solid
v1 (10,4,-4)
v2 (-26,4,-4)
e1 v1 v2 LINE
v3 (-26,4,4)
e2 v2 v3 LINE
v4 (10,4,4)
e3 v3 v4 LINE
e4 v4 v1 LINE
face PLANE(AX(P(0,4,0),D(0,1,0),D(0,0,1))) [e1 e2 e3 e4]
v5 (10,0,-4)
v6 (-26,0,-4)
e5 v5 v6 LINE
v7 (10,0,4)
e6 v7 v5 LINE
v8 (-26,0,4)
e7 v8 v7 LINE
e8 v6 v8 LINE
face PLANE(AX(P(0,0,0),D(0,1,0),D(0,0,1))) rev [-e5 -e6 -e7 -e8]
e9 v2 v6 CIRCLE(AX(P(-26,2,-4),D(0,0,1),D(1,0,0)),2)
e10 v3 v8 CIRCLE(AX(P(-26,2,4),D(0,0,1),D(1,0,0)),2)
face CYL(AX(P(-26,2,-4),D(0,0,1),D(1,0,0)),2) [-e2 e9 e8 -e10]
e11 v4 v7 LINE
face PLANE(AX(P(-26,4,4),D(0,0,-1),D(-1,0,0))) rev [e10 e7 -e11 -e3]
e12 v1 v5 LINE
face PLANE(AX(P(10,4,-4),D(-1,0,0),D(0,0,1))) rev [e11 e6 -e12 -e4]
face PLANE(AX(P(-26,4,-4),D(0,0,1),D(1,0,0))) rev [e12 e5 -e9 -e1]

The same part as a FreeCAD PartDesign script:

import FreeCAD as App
import Part
import Sketcher
Q = App.Units.Quantity

doc = App.newDocument("Part")
body = doc.addObject("PartDesign::Body", "Body")

# Sketch on XZ plane
sketch1 = doc.addObject("Sketcher::SketchObject", "Sketch")
body.addObject(sketch1)
sketch1.AttachmentSupport = (doc.XZ_Plane, [""])
sketch1.MapMode = "FlatFace"
sketch1.addGeometry(Part.LineSegment(App.Vector(-26, -4, 0), App.Vector(-26, 4, 0)), False)
sketch1.addGeometry(Part.LineSegment(App.Vector(-26, 4, 0), App.Vector(10, 4, 0)), False)
sketch1.addGeometry(Part.LineSegment(App.Vector(10, 4, 0), App.Vector(10, -4, 0)), False)
sketch1.addGeometry(Part.LineSegment(App.Vector(10, -4, 0), App.Vector(-26, -4, 0)), False)
sketch1.addConstraint(Sketcher.Constraint("Coincident", 0, 2, 1, 1))
sketch1.addConstraint(Sketcher.Constraint("Coincident", 1, 2, 2, 1))
sketch1.addConstraint(Sketcher.Constraint("Coincident", 2, 2, 3, 1))
sketch1.addConstraint(Sketcher.Constraint("Coincident", 3, 2, 0, 1))
sketch1.addConstraint(Sketcher.Constraint("Vertical", 0))
sketch1.addConstraint(Sketcher.Constraint("Horizontal", 1))
sketch1.addConstraint(Sketcher.Constraint("Vertical", 2))
sketch1.addConstraint(Sketcher.Constraint("Horizontal", 3))
sketch1.addConstraint(Sketcher.Constraint("DistanceX", 1, 1, 1, 2, Q("36 mm")))
sketch1.addConstraint(Sketcher.Constraint("DistanceY", 0, 1, 0, 2, Q("8 mm")))
sketch1.addConstraint(Sketcher.Constraint("DistanceX", 0, 2, -1, 1, Q("26 mm")))
sketch1.addConstraint(Sketcher.Constraint("DistanceY", -1, 1, 0, 2, Q("4 mm")))
pad1 = doc.addObject("PartDesign::Pad", "Pad")
body.addObject(pad1)
pad1.Profile = sketch1
pad1.Length = 4
pad1.Reversed = True

# Sketch on XY plane
sketch2 = doc.addObject("Sketcher::SketchObject", "Sketch001")
body.addObject(sketch2)
sketch2.AttachmentSupport = (doc.XY_Plane, [""])
sketch2.MapMode = "FlatFace"
sketch2.AttachmentOffset = App.Placement(App.Vector(0, 0, 4), App.Rotation())
sketch2.addGeometry(Part.Circle(App.Vector(-26, 2, 0), App.Vector(0, 0, 1), 2), False)
sketch2.addConstraint(Sketcher.Constraint("Diameter", 0, Q("4 mm")))
sketch2.addConstraint(Sketcher.Constraint("DistanceX", 0, 3, -1, 1, Q("26 mm")))
sketch2.addConstraint(Sketcher.Constraint("DistanceY", -1, 1, 0, 3, Q("2 mm")))
pad2 = doc.addObject("PartDesign::Pad", "Pad001")
body.addObject(pad2)
pad2.Profile = sketch2
pad2.Length = 8
pad2.Reversed = True

doc.recompute()
